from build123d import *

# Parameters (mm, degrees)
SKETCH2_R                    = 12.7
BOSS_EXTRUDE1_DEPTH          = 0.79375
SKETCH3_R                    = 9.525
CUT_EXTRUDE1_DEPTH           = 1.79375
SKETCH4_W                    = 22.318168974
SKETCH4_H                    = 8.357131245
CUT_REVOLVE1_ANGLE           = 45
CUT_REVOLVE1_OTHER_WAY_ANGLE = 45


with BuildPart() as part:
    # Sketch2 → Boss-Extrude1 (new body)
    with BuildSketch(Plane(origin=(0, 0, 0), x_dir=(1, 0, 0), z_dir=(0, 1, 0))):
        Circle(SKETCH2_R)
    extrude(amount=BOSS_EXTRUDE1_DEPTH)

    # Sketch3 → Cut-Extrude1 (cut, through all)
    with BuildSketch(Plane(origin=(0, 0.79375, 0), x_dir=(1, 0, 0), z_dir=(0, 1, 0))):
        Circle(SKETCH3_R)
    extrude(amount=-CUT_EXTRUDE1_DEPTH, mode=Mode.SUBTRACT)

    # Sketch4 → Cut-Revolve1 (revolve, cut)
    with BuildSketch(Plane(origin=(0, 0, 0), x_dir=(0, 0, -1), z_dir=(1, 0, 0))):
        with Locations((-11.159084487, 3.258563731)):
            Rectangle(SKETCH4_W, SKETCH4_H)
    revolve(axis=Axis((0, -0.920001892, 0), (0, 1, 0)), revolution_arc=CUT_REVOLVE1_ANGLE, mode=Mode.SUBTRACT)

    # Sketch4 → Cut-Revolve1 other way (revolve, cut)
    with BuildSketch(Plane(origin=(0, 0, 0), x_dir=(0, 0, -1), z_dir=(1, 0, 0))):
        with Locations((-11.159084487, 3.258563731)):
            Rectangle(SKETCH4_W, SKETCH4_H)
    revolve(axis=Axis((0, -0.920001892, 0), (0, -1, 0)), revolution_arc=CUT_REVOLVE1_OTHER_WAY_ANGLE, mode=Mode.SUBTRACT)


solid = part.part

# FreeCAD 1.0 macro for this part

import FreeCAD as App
import Part
import Sketcher
Q = App.Units.Quantity

doc = App.newDocument("Part")
body = doc.addObject("PartDesign::Body", "Body")

# Sketch on XZ plane
sketch1 = body.newObject("Sketcher::SketchObject", "Sketch")
sketch1.AttachmentSupport = (doc.getObject("XZ_Plane"), [""])
sketch1.MapMode = "FlatFace"
sketch1.addGeometry(Part.Circle(App.Vector(0, 0, 0), App.Vector(0, 0, 1), 12.7), False)
sketch1.addConstraint([
    Sketcher.Constraint("Coincident", 0, 3, -1, 1),
    Sketcher.Constraint("Diameter", 0, Q("1 in")),
])
pad1 = body.newObject("PartDesign::Pad", "Pad")
pad1.Profile = sketch1
pad1.Length = Q("0.03125 in")
pad1.Reversed = True

# Sketch on XZ plane
sketch2 = body.newObject("Sketcher::SketchObject", "Sketch001")
sketch2.AttachmentSupport = (doc.getObject("XZ_Plane"), [""])
sketch2.MapMode = "FlatFace"
sketch2.AttachmentOffset = App.Placement(App.Vector(0, 0, -0.03125 * 25.4), App.Rotation())
sketch2.addGeometry(Part.Circle(App.Vector(0, 0, 0), App.Vector(0, 0, 1), 9.525), False)
sketch2.addConstraint([
    Sketcher.Constraint("Coincident", 0, 3, -1, 1),
    Sketcher.Constraint("Diameter", 0, Q("0.75 in")),
])
pocket1 = body.newObject("PartDesign::Pocket", "Pocket")
pocket1.Profile = sketch2
pocket1.Type = "ThroughAll"
pocket1.Reversed = True

# Sketch on YZ plane
sketch3 = body.newObject("Sketcher::SketchObject", "Sketch002")
sketch3.AttachmentSupport = (doc.getObject("YZ_Plane"), [""])
sketch3.MapMode = "FlatFace"
sketch3.addGeometry([
    Part.LineSegment(App.Vector(7.437129, 22.318169, 0), App.Vector(-0.920002, 22.318169, 0)),
    Part.LineSegment(App.Vector(-0.920002, 22.318169, 0), App.Vector(-0.920002, 0, 0)),
    Part.LineSegment(App.Vector(-0.920002, 0, 0), App.Vector(7.437129, 0, 0)),
    Part.LineSegment(App.Vector(7.437129, 0, 0), App.Vector(7.437129, 22.318169, 0)),
], False)
sketch3.addConstraint([
    Sketcher.Constraint("Coincident", 0, 2, 1, 1),
    Sketcher.Constraint("Coincident", 1, 2, 2, 1),
    Sketcher.Constraint("Coincident", 2, 2, 3, 1),
    Sketcher.Constraint("Coincident", 3, 2, 0, 1),
    Sketcher.Constraint("Horizontal", 0),
    Sketcher.Constraint("Vertical", 1),
    Sketcher.Constraint("Horizontal", 2),
    Sketcher.Constraint("Vertical", 3),
    Sketcher.Constraint("PointOnObject", 1, 2, -1),
    Sketcher.Constraint("DistanceX", 0, 2, 0, 1, 8.357131),
    Sketcher.Constraint("DistanceY", 1, 2, 1, 1, 22.318169),
    Sketcher.Constraint("DistanceX", 0, 2, -1, 1, 0.920002),
])
groove = body.newObject("PartDesign::Groove", "Groove")
groove.Profile = sketch3
groove.ReferenceAxis = (sketch3, ["H_Axis"])
groove.Angle = 45

# Sketch on YZ plane
sketch4 = body.newObject("Sketcher::SketchObject", "Sketch003")
sketch4.AttachmentSupport = (doc.getObject("YZ_Plane"), [""])
sketch4.MapMode = "FlatFace"
sketch4.addGeometry([
    Part.LineSegment(App.Vector(7.437129, 22.318169, 0), App.Vector(-0.920002, 22.318169, 0)),
    Part.LineSegment(App.Vector(-0.920002, 22.318169, 0), App.Vector(-0.920002, 0, 0)),
    Part.LineSegment(App.Vector(-0.920002, 0, 0), App.Vector(7.437129, 0, 0)),
    Part.LineSegment(App.Vector(7.437129, 0, 0), App.Vector(7.437129, 22.318169, 0)),
], False)
sketch4.addConstraint([
    Sketcher.Constraint("Coincident", 0, 2, 1, 1),
    Sketcher.Constraint("Coincident", 1, 2, 2, 1),
    Sketcher.Constraint("Coincident", 2, 2, 3, 1),
    Sketcher.Constraint("Coincident", 3, 2, 0, 1),
    Sketcher.Constraint("Horizontal", 0),
    Sketcher.Constraint("Vertical", 1),
    Sketcher.Constraint("Horizontal", 2),
    Sketcher.Constraint("Vertical", 3),
    Sketcher.Constraint("PointOnObject", 1, 2, -1),
    Sketcher.Constraint("DistanceX", 0, 2, 0, 1, 8.357131),
    Sketcher.Constraint("DistanceY", 1, 2, 1, 1, 22.318169),
    Sketcher.Constraint("DistanceX", 0, 2, -1, 1, 0.920002),
])
groove2 = body.newObject("PartDesign::Groove", "Groove001")
groove2.Profile = sketch4
groove2.ReferenceAxis = (sketch4, ["H_Axis"])
groove2.Angle = 45
groove2.Reversed = True

doc.recompute()
